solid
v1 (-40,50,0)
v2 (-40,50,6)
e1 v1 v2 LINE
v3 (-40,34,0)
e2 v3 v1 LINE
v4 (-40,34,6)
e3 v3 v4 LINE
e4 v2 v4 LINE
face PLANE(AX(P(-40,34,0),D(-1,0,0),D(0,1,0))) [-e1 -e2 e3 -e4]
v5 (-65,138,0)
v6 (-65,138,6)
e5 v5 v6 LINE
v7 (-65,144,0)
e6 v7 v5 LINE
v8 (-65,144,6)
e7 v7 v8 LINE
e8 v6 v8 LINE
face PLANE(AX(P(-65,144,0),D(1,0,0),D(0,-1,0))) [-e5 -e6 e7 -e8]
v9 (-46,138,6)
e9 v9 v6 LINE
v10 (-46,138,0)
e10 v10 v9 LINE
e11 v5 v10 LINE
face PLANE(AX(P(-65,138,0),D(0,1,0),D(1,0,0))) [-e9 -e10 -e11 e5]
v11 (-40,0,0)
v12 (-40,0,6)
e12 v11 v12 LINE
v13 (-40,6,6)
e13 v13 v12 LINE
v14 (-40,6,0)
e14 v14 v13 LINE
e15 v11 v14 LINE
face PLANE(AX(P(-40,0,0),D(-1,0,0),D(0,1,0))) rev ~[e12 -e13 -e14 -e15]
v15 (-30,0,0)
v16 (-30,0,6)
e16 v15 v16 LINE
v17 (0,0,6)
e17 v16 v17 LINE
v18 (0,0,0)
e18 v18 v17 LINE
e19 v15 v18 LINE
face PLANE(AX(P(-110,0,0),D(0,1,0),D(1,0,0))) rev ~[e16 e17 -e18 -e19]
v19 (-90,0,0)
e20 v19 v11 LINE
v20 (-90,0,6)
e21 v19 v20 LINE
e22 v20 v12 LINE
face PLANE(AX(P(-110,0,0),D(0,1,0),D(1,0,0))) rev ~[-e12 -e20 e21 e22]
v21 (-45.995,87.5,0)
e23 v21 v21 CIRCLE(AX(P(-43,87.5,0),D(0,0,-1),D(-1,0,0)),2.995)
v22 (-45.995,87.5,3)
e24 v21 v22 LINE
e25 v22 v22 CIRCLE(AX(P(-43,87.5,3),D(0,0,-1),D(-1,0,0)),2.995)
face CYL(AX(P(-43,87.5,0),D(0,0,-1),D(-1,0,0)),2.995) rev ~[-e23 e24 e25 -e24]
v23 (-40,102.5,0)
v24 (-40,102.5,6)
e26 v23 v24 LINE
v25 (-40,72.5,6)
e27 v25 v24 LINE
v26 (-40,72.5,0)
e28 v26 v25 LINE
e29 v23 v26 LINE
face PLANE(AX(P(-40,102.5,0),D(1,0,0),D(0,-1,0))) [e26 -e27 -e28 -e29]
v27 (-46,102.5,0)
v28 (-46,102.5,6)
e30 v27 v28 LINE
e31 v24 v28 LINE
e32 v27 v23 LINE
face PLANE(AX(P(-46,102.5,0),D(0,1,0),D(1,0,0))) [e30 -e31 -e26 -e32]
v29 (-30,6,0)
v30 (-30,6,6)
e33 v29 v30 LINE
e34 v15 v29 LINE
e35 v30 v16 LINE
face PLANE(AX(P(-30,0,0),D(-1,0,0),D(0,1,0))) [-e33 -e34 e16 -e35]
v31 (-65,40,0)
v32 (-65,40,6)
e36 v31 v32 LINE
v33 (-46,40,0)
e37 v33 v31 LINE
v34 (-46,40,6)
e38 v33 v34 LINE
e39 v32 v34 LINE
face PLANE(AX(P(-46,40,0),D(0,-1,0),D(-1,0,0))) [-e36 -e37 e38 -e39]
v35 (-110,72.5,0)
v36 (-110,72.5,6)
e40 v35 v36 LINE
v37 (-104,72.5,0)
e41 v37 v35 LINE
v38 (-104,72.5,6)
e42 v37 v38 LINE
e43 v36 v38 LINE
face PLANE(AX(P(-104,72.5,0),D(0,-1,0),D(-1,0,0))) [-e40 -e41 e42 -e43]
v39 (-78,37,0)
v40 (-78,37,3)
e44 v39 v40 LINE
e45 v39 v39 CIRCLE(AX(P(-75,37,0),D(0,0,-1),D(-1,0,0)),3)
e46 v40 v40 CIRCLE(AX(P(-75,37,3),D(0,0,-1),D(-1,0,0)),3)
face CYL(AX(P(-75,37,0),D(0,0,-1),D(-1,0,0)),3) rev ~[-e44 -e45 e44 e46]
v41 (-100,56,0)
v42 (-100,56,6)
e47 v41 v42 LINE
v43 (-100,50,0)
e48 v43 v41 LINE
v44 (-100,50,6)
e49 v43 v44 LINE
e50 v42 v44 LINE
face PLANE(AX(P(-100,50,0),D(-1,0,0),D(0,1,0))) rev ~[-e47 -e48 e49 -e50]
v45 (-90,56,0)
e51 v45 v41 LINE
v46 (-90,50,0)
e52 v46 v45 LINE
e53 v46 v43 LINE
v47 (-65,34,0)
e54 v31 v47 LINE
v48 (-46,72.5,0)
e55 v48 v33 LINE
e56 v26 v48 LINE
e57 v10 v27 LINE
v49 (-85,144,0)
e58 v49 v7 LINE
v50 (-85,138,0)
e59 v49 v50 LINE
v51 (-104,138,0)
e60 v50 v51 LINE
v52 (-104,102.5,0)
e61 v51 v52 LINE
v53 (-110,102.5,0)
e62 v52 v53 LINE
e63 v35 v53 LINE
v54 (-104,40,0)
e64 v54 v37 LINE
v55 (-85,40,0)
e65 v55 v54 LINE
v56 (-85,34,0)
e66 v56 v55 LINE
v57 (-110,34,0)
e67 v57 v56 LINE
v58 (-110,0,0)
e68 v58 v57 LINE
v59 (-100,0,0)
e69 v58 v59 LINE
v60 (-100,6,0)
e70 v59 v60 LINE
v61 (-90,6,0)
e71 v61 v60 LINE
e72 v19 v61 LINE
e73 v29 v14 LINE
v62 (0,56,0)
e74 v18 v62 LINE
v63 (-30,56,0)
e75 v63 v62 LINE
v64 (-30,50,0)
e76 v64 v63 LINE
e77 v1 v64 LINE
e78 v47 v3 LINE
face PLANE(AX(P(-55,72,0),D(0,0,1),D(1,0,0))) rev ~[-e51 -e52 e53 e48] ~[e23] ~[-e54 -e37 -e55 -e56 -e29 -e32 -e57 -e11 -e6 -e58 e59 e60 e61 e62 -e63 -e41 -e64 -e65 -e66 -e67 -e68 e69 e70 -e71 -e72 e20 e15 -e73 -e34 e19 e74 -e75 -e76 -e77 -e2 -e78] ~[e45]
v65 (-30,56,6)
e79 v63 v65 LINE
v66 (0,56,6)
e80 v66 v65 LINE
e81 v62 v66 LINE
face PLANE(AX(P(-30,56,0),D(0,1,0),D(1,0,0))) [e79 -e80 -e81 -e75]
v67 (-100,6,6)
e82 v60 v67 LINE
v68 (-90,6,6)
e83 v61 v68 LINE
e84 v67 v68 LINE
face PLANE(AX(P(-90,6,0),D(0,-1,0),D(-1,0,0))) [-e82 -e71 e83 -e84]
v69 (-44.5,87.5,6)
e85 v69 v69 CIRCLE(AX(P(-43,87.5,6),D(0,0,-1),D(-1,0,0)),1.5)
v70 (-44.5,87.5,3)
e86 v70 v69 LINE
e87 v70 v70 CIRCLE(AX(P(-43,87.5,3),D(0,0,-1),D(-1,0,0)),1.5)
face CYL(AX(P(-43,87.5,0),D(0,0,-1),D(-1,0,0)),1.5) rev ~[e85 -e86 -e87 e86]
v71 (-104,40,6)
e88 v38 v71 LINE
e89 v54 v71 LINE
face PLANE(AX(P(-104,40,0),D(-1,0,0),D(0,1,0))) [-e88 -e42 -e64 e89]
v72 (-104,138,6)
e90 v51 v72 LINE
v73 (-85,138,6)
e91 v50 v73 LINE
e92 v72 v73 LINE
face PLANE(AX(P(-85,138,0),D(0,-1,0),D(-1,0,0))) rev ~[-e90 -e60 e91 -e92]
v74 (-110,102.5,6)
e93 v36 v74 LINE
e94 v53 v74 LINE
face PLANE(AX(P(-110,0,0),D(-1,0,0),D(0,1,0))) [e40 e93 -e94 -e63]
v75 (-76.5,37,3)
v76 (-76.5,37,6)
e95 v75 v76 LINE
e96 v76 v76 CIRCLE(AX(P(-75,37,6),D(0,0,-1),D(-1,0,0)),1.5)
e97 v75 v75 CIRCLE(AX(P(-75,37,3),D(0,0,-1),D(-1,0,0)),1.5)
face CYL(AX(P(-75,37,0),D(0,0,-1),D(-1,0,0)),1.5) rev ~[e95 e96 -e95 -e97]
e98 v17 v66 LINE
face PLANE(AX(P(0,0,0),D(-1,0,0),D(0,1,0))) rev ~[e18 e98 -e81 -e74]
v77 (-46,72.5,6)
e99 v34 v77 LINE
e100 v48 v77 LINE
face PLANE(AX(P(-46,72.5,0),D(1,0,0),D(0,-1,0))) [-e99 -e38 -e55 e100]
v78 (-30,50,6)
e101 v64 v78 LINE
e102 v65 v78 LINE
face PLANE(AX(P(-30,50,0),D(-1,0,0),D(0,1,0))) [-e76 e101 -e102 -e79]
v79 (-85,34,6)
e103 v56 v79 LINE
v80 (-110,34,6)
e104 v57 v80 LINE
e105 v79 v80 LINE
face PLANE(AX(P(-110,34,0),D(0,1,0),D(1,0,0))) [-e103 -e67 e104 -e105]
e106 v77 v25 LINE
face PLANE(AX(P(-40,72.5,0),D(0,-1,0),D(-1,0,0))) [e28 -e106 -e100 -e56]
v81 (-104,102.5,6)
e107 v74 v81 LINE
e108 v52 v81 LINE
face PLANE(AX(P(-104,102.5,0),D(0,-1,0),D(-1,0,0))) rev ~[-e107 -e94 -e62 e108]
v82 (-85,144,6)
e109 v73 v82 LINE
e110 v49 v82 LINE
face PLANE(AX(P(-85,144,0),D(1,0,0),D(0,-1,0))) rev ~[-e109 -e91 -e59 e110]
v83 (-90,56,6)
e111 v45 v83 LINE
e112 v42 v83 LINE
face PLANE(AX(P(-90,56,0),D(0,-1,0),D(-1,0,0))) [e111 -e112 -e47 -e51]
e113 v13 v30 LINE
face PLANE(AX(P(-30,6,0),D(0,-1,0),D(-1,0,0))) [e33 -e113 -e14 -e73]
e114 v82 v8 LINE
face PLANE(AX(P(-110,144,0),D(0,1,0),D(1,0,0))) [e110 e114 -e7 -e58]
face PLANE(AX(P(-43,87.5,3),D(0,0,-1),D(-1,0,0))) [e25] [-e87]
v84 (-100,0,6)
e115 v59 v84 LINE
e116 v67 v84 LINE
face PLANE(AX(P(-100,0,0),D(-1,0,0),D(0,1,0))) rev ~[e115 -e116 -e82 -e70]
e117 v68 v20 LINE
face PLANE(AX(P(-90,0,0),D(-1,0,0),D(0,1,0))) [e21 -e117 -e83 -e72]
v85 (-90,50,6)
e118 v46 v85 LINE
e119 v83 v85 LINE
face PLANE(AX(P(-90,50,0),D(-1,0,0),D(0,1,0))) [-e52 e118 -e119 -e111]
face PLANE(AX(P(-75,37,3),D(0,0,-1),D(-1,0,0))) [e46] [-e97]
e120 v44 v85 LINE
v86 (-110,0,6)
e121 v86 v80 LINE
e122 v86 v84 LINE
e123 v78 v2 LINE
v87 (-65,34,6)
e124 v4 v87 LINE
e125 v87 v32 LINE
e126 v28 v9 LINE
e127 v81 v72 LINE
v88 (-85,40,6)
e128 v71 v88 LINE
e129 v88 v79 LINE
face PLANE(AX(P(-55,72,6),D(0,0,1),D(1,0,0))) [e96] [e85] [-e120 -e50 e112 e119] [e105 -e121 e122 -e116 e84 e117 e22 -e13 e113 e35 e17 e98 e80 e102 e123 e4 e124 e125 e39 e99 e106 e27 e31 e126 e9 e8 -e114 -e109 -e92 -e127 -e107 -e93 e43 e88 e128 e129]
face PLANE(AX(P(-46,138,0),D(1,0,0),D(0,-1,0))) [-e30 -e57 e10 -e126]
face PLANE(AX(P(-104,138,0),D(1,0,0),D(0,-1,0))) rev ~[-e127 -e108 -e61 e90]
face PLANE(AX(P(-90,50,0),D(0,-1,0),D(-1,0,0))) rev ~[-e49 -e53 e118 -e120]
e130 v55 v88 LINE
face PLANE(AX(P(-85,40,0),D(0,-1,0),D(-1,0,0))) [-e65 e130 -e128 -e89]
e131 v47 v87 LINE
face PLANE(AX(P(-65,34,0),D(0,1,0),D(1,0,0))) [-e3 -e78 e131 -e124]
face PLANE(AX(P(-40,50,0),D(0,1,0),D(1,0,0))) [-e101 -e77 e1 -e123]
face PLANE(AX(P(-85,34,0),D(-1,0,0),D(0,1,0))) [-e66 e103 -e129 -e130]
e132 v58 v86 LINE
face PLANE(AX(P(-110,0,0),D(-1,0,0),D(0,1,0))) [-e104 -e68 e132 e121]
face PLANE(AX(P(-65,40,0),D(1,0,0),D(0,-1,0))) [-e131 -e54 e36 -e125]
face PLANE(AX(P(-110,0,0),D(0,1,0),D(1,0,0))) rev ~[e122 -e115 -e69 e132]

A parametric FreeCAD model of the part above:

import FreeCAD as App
import Part
import Sketcher
from FreeCAD import Vector

doc = App.newDocument("Part")
body = doc.addObject("PartDesign::Body", "Body")

# Sketch on XY plane
sketch1 = body.newObject("Sketcher::SketchObject", "Sketch")
sketch1.AttachmentSupport = (doc.getObject("XY_Plane"), [""])
sketch1.MapMode = "FlatFace"
sketch1.addGeometry(Part.LineSegment(Vector(-110, 144, 0), Vector(-110, 0, 0)), False)
sketch1.addGeometry(Part.LineSegment(Vector(-110, 0, 0), Vector(0, 0, 0)), False)
sketch1.addGeometry(Part.LineSegment(Vector(0, 0, 0), Vector(0, 144, 0)), False)
sketch1.addGeometry(Part.LineSegment(Vector(0, 144, 0), Vector(-110, 144, 0)), False)
sketch1.addConstraint(Sketcher.Constraint("Coincident", 0, 2, 1, 1))
sketch1.addConstraint(Sketcher.Constraint("Coincident", 1, 2, 2, 1))
sketch1.addConstraint(Sketcher.Constraint("Coincident", 2, 2, 3, 1))
sketch1.addConstraint(Sketcher.Constraint("Coincident", 3, 2, 0, 1))
sketch1.addConstraint(Sketcher.Constraint("Vertical", 0))
sketch1.addConstraint(Sketcher.Constraint("Horizontal", 1))
sketch1.addConstraint(Sketcher.Constraint("Vertical", 2))
sketch1.addConstraint(Sketcher.Constraint("Horizontal", 3))
sketch1.addConstraint(Sketcher.Constraint("Coincident", 1, 2, -1, 1))
sketch1.addConstraint(Sketcher.Constraint("DistanceX", 1, 1, 1, 2, 110.0))
sketch1.addConstraint(Sketcher.Constraint("DistanceY", 0, 2, 0, 1, 144.0))
pad1 = body.newObject("PartDesign::Pad", "Pad")
pad1.Profile = sketch1
pad1.Length = 6

# Sketch on XY plane
sketch2 = body.newObject("Sketcher::SketchObject", "Sketch001")
sketch2.AttachmentSupport = (doc.getObject("XY_Plane"), [""])
sketch2.MapMode = "FlatFace"
sketch2.addGeometry(Part.LineSegment(Vector(-40, 72, 0), Vector(-40, 102, 0)), False)
sketch2.addGeometry(Part.LineSegment(Vector(-40, 102, 0), Vector(-46, 102, 0)), False)
sketch2.addGeometry(Part.LineSegment(Vector(-46, 102, 0), Vector(-46, 138, 0)), False)
sketch2.addGeometry(Part.LineSegment(Vector(-46, 138, 0), Vector(-65, 138, 0)), False)
sketch2.addGeometry(Part.LineSegment(Vector(-65, 138, 0), Vector(-65, 144, 0)), False)
sketch2.addGeometry(Part.LineSegment(Vector(-65, 144, 0), Vector(0, 144, 0)), False)
sketch2.addGeometry(Part.LineSegment(Vector(0, 144, 0), Vector(0, 56, 0)), False)
sketch2.addGeometry(Part.LineSegment(Vector(0, 56, 0), Vector(-30, 56, 0)), False)
sketch2.addGeometry(Part.LineSegment(Vector(-30, 56, 0), Vector(-30, 50, 0)), False)
sketch2.addGeometry(Part.LineSegment(Vector(-30, 50, 0), Vector(-40, 50, 0)), False)
sketch2.addGeometry(Part.LineSegment(Vector(-40, 50, 0), Vector(-40, 34, 0)), False)
sketch2.addGeometry(Part.LineSegment(Vector(-40, 34, 0), Vector(-65, 34, 0)), False)
sketch2.addGeometry(Part.LineSegment(Vector(-65, 34, 0), Vector(-65, 40, 0)), False)
sketch2.addGeometry(Part.LineSegment(Vector(-65, 40, 0), Vector(-46, 40, 0)), False)
sketch2.addGeometry(Part.LineSegment(Vector(-46, 40, 0), Vector(-46, 72, 0)), False)
sketch2.addGeometry(Part.LineSegment(Vector(-46, 72, 0), Vector(-40, 72, 0)), False)
sketch2.addGeometry(Part.LineSegment(Vector(-110, 144, 0), Vector(-85, 144, 0)), False)
sketch2.addGeometry(Part.LineSegment(Vector(-85, 144, 0), Vector(-85, 138, 0)), False)
sketch2.addGeometry(Part.LineSegment(Vector(-85, 138, 0), Vector(-104, 138, 0)), False)
sketch2.addGeometry(Part.LineSegment(Vector(-104, 138, 0), Vector(-104, 102, 0)), False)
sketch2.addGeometry(Part.LineSegment(Vector(-104, 102, 0), Vector(-110, 102, 0)), False)
sketch2.addGeometry(Part.LineSegment(Vector(-110, 102, 0), Vector(-110, 144, 0)), False)
sketch2.addGeometry(Part.LineSegment(Vector(-110, 34, 0), Vector(-110, 72, 0)), False)
sketch2.addGeometry(Part.LineSegment(Vector(-110, 72, 0), Vector(-104, 72, 0)), False)
sketch2.addGeometry(Part.LineSegment(Vector(-104, 72, 0), Vector(-104, 40, 0)), False)
sketch2.addGeometry(Part.LineSegment(Vector(-104, 40, 0), Vector(-85, 40, 0)), False)
sketch2.addGeometry(Part.LineSegment(Vector(-85, 40, 0), Vector(-85, 34, 0)), False)
sketch2.addGeometry(Part.LineSegment(Vector(-85, 34, 0), Vector(-110, 34, 0)), False)
sketch2.addGeometry(Part.LineSegment(Vector(-90, 6, 0), Vector(-90, 0, 0)), False)
sketch2.addGeometry(Part.LineSegment(Vector(-90, 0, 0), Vector(-100, 0, 0)), False)
sketch2.addGeometry(Part.LineSegment(Vector(-100, 0, 0), Vector(-100, 6, 0)), False)
sketch2.addGeometry(Part.LineSegment(Vector(-100, 6, 0), Vector(-90, 6, 0)), False)
sketch2.addGeometry(Part.LineSegment(Vector(-30, 6, 0), Vector(-30, 0, 0)), False)
sketch2.addGeometry(Part.LineSegment(Vector(-30, 0, 0), Vector(-40, 0, 0)), False)
sketch2.addGeometry(Part.LineSegment(Vector(-40, 0, 0), Vector(-40, 6, 0)), False)
sketch2.addGeometry(Part.LineSegment(Vector(-40, 6, 0), Vector(-30, 6, 0)), False)
sketch2.addGeometry(Part.LineSegment(Vector(-90, 56, 0), Vector(-90, 50, 0)), False)
sketch2.addGeometry(Part.LineSegment(Vector(-90, 50, 0), Vector(-100, 50, 0)), False)
sketch2.addGeometry(Part.LineSegment(Vector(-100, 50, 0), Vector(-100, 56, 0)), False)
sketch2.addGeometry(Part.LineSegment(Vector(-100, 56, 0), Vector(-90, 56, 0)), False)
sketch2.addConstraint(Sketcher.Constraint("Coincident", 0, 2, 1, 1))
sketch2.addConstraint(Sketcher.Constraint("Coincident", 1, 2, 2, 1))
sketch2.addConstraint(Sketcher.Constraint("Coincident", 2, 2, 3, 1))
sketch2.addConstraint(Sketcher.Constraint("Coincident", 3, 2, 4, 1))
sketch2.addConstraint(Sketcher.Constraint("Coincident", 4, 2, 5, 1))
sketch2.addConstraint(Sketcher.Constraint("Coincident", 5, 2, 6, 1))
sketch2.addConstraint(Sketcher.Constraint("Coincident", 6, 2, 7, 1))
sketch2.addConstraint(Sketcher.Constraint("Coincident", 7, 2, 8, 1))
sketch2.addConstraint(Sketcher.Constraint("Coincident", 8, 2, 9, 1))
sketch2.addConstraint(Sketcher.Constraint("Coincident", 9, 2, 10, 1))
sketch2.addConstraint(Sketcher.Constraint("Coincident", 10, 2, 11, 1))
sketch2.addConstraint(Sketcher.Constraint("Coincident", 11, 2, 12, 1))
sketch2.addConstraint(Sketcher.Constraint("Coincident", 12, 2, 13, 1))
sketch2.addConstraint(Sketcher.Constraint("Coincident", 13, 2, 14, 1))
sketch2.addConstraint(Sketcher.Constraint("Coincident", 14, 2, 15, 1))
sketch2.addConstraint(Sketcher.Constraint("Coincident", 15, 2, 0, 1))
sketch2.addConstraint(Sketcher.Constraint("Coincident", 16, 2, 17, 1))
sketch2.addConstraint(Sketcher.Constraint("Coincident", 17, 2, 18, 1))
sketch2.addConstraint(Sketcher.Constraint("Coincident", 18, 2, 19, 1))
sketch2.addConstraint(Sketcher.Constraint("Coincident", 19, 2, 20, 1))
sketch2.addConstraint(Sketcher.Constraint("Coincident", 20, 2, 21, 1))
sketch2.addConstraint(Sketcher.Constraint("Coincident", 21, 2, 16, 1))
sketch2.addConstraint(Sketcher.Constraint("Coincident", 22, 2, 23, 1))
sketch2.addConstraint(Sketcher.Constraint("Coincident", 23, 2, 24, 1))
sketch2.addConstraint(Sketcher.Constraint("Coincident", 24, 2, 25, 1))
sketch2.addConstraint(Sketcher.Constraint("Coincident", 25, 2, 26, 1))
sketch2.addConstraint(Sketcher.Constraint("Coincident", 26, 2, 27, 1))
sketch2.addConstraint(Sketcher.Constraint("Coincident", 27, 2, 22, 1))
sketch2.addConstraint(Sketcher.Constraint("Coincident", 28, 2, 29, 1))
sketch2.addConstraint(Sketcher.Constraint("Coincident", 29, 2, 30, 1))
sketch2.addConstraint(Sketcher.Constraint("Coincident", 30, 2, 31, 1))
sketch2.addConstraint(Sketcher.Constraint("Coincident", 31, 2, 28, 1))
sketch2.addConstraint(Sketcher.Constraint("Coincident", 32, 2, 33, 1))
sketch2.addConstraint(Sketcher.Constraint("Coincident", 33, 2, 34, 1))
sketch2.addConstraint(Sketcher.Constraint("Coincident", 34, 2, 35, 1))
sketch2.addConstraint(Sketcher.Constraint("Coincident", 35, 2, 32, 1))
sketch2.addConstraint(Sketcher.Constraint("Coincident", 36, 2, 37, 1))
sketch2.addConstraint(Sketcher.Constraint("Coincident", 37, 2, 38, 1))
sketch2.addConstraint(Sketcher.Constraint("Coincident", 38, 2, 39, 1))
sketch2.addConstraint(Sketcher.Constraint("Coincident", 39, 2, 36, 1))
sketch2.addConstraint(Sketcher.Constraint("Vertical", 0))
sketch2.addConstraint(Sketcher.Constraint("Horizontal", 1))
sketch2.addConstraint(Sketcher.Constraint("Vertical", 2))
sketch2.addConstraint(Sketcher.Constraint("Horizontal", 3))
sketch2.addConstraint(Sketcher.Constraint("Vertical", 4))
sketch2.addConstraint(Sketcher.Constraint("Horizontal", 5))
sketch2.addConstraint(Sketcher.Constraint("Vertical", 6))
sketch2.addConstraint(Sketcher.Constraint("Horizontal", 7))
sketch2.addConstraint(Sketcher.Constraint("Vertical", 8))
sketch2.addConstraint(Sketcher.Constraint("Horizontal", 9))
sketch2.addConstraint(Sketcher.Constraint("Vertical", 10))
sketch2.addConstraint(Sketcher.Constraint("Horizontal", 11))
sketch2.addConstraint(Sketcher.Constraint("Vertical", 12))
sketch2.addConstraint(Sketcher.Constraint("Horizontal", 13))
sketch2.addConstraint(Sketcher.Constraint("Vertical", 14))
sketch2.addConstraint(Sketcher.Constraint("Horizontal", 15))
sketch2.addConstraint(Sketcher.Constraint("Horizontal", 16))
sketch2.addConstraint(Sketcher.Constraint("Vertical", 17))
sketch2.addConstraint(Sketcher.Constraint("Horizontal", 18))
sketch2.addConstraint(Sketcher.Constraint("Vertical", 19))
sketch2.addConstraint(Sketcher.Constraint("Horizontal", 20))
sketch2.addConstraint(Sketcher.Constraint("Vertical", 21))
sketch2.addConstraint(Sketcher.Constraint("Vertical", 22))
sketch2.addConstraint(Sketcher.Constraint("Horizontal", 23))
sketch2.addConstraint(Sketcher.Constraint("Vertical", 24))
sketch2.addConstraint(Sketcher.Constraint("Horizontal", 25))
sketch2.addConstraint(Sketcher.Constraint("Vertical", 26))
sketch2.addConstraint(Sketcher.Constraint("Horizontal", 27))
sketch2.addConstraint(Sketcher.Constraint("Vertical", 28))
sketch2.addConstraint(Sketcher.Constraint("Horizontal", 29))
sketch2.addConstraint(Sketcher.Constraint("Vertical", 30))
sketch2.addConstraint(Sketcher.Constraint("Horizontal", 31))
sketch2.addConstraint(Sketcher.Constraint("Vertical", 32))
sketch2.addConstraint(Sketcher.Constraint("Horizontal", 33))
sketch2.addConstraint(Sketcher.Constraint("Vertical", 34))
sketch2.addConstraint(Sketcher.Constraint("Horizontal", 35))
sketch2.addConstraint(Sketcher.Constraint("Vertical", 36))
sketch2.addConstraint(Sketcher.Constraint("Horizontal", 37))
sketch2.addConstraint(Sketcher.Constraint("Vertical", 38))
sketch2.addConstraint(Sketcher.Constraint("Horizontal", 39))
sketch2.addConstraint(Sketcher.Constraint("PointOnObject", 5, 2, -2))
sketch2.addConstraint(Sketcher.Constraint("PointOnObject", 28, 2, -1))
sketch2.addConstraint(Sketcher.Constraint("PointOnObject", 32, 2, -1))
sketch2.addConstraint(Sketcher.Constraint("Horizontal", 5, 2, 16, 2))
sketch2.addConstraint(Sketcher.Constraint("Horizontal", 3, 2, 17, 2))
sketch2.addConstraint(Sketcher.Constraint("Horizontal", 1, 2, 19, 2))
sketch2.addConstraint(Sketcher.Constraint("Horizontal", 15, 2, 22, 2))
sketch2.addConstraint(Sketcher.Constraint("Horizontal", 13, 2, 24, 2))
sketch2.addConstraint(Sketcher.Constraint("Horizontal", 11, 2, 26, 2))
sketch2.addConstraint(Sketcher.Constraint("Horizontal", 31, 2, 34, 2))
sketch2.addConstraint(Sketcher.Constraint("Horizontal", 9, 2, 36, 2))
sketch2.addConstraint(Sketcher.Constraint("Horizontal", 7, 2, 38, 2))
sketch2.addConstraint(Sketcher.Constraint("Vertical", 0, 2, 9, 2))
sketch2.addConstraint(Sketcher.Constraint("Vertical", 4, 2, 11, 2))
sketch2.addConstraint(Sketcher.Constraint("Vertical", 2, 2, 13, 2))
sketch2.addConstraint(Sketcher.Constraint("Vertical", 21, 2, 22, 2))
sketch2.addConstraint(Sketcher.Constraint("Vertical", 19, 2, 23, 2))
sketch2.addConstraint(Sketcher.Constraint("Vertical", 17, 2, 25, 2))
sketch2.addConstraint(Sketcher.Constraint("Vertical", 8, 2, 32, 2))
sketch2.addConstraint(Sketcher.Constraint("Vertical", 15, 2, 33, 2))
sketch2.addConstraint(Sketcher.Constraint("Vertical", 31, 2, 36, 2))
sketch2.addConstraint(Sketcher.Constraint("Vertical", 30, 2, 37, 2))
sketch2.addConstraint(Sketcher.Constraint("Equal", 11, 16))
sketch2.addConstraint(Sketcher.Constraint("Equal", 13, 18))
sketch2.addConstraint(Sketcher.Constraint("Equal", 9, 29))
sketch2.addConstraint(Sketcher.Constraint("Equal", 7, 0))
sketch2.addConstraint(Sketcher.Constraint("Equal", 23, 4))
sketch2.addConstraint(Sketcher.Constraint("Equal", 4, 8))
sketch2.addConstraint(Sketcher.Constraint("Equal", 8, 12))
sketch2.addConstraint(Sketcher.Constraint("Equal", 26, 28))
sketch2.addConstraint(Sketcher.Constraint("DistanceX", 1, 2, 1, 1, 6.0))
sketch2.addConstraint(Sketcher.Constraint("DistanceX", 3, 2, 3, 1, 19.0))
sketch2.addConstraint(Sketcher.Constraint("DistanceX", 5, 1, 5, 2, 65.0))
sketch2.addConstraint(Sketcher.Constraint("DistanceX", 7, 2, 7, 1, 30.0))
sketch2.addConstraint(Sketcher.Constraint("DistanceY", 6, 2, 6, 1, 88.0))
sketch2.addConstraint(Sketcher.Constraint("DistanceY", 10, 2, 10, 1, 16.0))
sketch2.addConstraint(Sketcher.Constraint("DistanceY", 2, 1, 2, 2, 35.5))
sketch2.addConstraint(Sketcher.Constraint("DistanceY", -1, 1, 2, 2, 138.0))
sketch2.addConstraint(Sketcher.Constraint("DistanceX", 16, 2, -1, 1, 85.0))
sketch2.addConstraint(Sketcher.Constraint("DistanceX", 28, 2, -1, 1, 90.0))
pocket1 = body.newObject("PartDesign::Pocket", "Pocket")
pocket1.Profile = sketch2
pocket1.Type = "ThroughAll"
pocket1.Reversed = True

# Sketch on XY plane
sketch3 = body.newObject("Sketcher::SketchObject", "Sketch002")
sketch3.AttachmentSupport = (doc.getObject("XY_Plane"), [""])
sketch3.MapMode = "FlatFace"
sketch3.addGeometry(Part.Circle(Vector(-43, 87.5, 0), Vector(0, 0, 1), 1.5), False)
sketch3.addGeometry(Part.Circle(Vector(-75, 37, 0), Vector(0, 0, 1), 1.5), False)
sketch3.addConstraint(Sketcher.Constraint("Equal", 0, 1))
sketch3.addConstraint(Sketcher.Constraint("Diameter", 0, 3.0))
sketch3.addConstraint(Sketcher.Constraint("DistanceX", 0, 3, -1, 1, 43.0))
sketch3.addConstraint(Sketcher.Constraint("DistanceX", 1, 3, -1, 1, 75.0))
sketch3.addConstraint(Sketcher.Constraint("DistanceY", -1, 1, 1, 3, 37.0))
sketch3.addConstraint(Sketcher.Constraint("DistanceY", -1, 1, 0, 3, 87.5))
pocket2 = body.newObject("PartDesign::Pocket", "Pocket001")
pocket2.Profile = sketch3
pocket2.Type = "ThroughAll"
pocket2.Reversed = True

# Sketch on XY plane
sketch4 = body.newObject("Sketcher::SketchObject", "Sketch003")
sketch4.AttachmentSupport = (doc.getObject("XY_Plane"), [""])
sketch4.MapMode = "FlatFace"
sketch4.addGeometry(Part.Circle(Vector(-43, 87.5, 0), Vector(0, 0, 1), 3), False)
sketch4.addGeometry(Part.Circle(Vector(-75, 37, 0), Vector(0, 0, 1), 3), False)
sketch4.addConstraint(Sketcher.Constraint("Diameter", 1, 6.0))
sketch4.addConstraint(Sketcher.Constraint("Diameter", 0, 5.99))
sketch4.addConstraint(Sketcher.Constraint("DistanceX", 0, 3, -1, 1, 43.0))
sketch4.addConstraint(Sketcher.Constraint("DistanceX", 1, 3, -1, 1, 75.0))
sketch4.addConstraint(Sketcher.Constraint("DistanceY", -1, 1, 1, 3, 37.0))
sketch4.addConstraint(Sketcher.Constraint("DistanceY", -1, 1, 0, 3, 87.5))
pocket3 = body.newObject("PartDesign::Pocket", "Pocket002")
pocket3.Profile = sketch4
pocket3.Length = 3
pocket3.Reversed = True

doc.recompute()
